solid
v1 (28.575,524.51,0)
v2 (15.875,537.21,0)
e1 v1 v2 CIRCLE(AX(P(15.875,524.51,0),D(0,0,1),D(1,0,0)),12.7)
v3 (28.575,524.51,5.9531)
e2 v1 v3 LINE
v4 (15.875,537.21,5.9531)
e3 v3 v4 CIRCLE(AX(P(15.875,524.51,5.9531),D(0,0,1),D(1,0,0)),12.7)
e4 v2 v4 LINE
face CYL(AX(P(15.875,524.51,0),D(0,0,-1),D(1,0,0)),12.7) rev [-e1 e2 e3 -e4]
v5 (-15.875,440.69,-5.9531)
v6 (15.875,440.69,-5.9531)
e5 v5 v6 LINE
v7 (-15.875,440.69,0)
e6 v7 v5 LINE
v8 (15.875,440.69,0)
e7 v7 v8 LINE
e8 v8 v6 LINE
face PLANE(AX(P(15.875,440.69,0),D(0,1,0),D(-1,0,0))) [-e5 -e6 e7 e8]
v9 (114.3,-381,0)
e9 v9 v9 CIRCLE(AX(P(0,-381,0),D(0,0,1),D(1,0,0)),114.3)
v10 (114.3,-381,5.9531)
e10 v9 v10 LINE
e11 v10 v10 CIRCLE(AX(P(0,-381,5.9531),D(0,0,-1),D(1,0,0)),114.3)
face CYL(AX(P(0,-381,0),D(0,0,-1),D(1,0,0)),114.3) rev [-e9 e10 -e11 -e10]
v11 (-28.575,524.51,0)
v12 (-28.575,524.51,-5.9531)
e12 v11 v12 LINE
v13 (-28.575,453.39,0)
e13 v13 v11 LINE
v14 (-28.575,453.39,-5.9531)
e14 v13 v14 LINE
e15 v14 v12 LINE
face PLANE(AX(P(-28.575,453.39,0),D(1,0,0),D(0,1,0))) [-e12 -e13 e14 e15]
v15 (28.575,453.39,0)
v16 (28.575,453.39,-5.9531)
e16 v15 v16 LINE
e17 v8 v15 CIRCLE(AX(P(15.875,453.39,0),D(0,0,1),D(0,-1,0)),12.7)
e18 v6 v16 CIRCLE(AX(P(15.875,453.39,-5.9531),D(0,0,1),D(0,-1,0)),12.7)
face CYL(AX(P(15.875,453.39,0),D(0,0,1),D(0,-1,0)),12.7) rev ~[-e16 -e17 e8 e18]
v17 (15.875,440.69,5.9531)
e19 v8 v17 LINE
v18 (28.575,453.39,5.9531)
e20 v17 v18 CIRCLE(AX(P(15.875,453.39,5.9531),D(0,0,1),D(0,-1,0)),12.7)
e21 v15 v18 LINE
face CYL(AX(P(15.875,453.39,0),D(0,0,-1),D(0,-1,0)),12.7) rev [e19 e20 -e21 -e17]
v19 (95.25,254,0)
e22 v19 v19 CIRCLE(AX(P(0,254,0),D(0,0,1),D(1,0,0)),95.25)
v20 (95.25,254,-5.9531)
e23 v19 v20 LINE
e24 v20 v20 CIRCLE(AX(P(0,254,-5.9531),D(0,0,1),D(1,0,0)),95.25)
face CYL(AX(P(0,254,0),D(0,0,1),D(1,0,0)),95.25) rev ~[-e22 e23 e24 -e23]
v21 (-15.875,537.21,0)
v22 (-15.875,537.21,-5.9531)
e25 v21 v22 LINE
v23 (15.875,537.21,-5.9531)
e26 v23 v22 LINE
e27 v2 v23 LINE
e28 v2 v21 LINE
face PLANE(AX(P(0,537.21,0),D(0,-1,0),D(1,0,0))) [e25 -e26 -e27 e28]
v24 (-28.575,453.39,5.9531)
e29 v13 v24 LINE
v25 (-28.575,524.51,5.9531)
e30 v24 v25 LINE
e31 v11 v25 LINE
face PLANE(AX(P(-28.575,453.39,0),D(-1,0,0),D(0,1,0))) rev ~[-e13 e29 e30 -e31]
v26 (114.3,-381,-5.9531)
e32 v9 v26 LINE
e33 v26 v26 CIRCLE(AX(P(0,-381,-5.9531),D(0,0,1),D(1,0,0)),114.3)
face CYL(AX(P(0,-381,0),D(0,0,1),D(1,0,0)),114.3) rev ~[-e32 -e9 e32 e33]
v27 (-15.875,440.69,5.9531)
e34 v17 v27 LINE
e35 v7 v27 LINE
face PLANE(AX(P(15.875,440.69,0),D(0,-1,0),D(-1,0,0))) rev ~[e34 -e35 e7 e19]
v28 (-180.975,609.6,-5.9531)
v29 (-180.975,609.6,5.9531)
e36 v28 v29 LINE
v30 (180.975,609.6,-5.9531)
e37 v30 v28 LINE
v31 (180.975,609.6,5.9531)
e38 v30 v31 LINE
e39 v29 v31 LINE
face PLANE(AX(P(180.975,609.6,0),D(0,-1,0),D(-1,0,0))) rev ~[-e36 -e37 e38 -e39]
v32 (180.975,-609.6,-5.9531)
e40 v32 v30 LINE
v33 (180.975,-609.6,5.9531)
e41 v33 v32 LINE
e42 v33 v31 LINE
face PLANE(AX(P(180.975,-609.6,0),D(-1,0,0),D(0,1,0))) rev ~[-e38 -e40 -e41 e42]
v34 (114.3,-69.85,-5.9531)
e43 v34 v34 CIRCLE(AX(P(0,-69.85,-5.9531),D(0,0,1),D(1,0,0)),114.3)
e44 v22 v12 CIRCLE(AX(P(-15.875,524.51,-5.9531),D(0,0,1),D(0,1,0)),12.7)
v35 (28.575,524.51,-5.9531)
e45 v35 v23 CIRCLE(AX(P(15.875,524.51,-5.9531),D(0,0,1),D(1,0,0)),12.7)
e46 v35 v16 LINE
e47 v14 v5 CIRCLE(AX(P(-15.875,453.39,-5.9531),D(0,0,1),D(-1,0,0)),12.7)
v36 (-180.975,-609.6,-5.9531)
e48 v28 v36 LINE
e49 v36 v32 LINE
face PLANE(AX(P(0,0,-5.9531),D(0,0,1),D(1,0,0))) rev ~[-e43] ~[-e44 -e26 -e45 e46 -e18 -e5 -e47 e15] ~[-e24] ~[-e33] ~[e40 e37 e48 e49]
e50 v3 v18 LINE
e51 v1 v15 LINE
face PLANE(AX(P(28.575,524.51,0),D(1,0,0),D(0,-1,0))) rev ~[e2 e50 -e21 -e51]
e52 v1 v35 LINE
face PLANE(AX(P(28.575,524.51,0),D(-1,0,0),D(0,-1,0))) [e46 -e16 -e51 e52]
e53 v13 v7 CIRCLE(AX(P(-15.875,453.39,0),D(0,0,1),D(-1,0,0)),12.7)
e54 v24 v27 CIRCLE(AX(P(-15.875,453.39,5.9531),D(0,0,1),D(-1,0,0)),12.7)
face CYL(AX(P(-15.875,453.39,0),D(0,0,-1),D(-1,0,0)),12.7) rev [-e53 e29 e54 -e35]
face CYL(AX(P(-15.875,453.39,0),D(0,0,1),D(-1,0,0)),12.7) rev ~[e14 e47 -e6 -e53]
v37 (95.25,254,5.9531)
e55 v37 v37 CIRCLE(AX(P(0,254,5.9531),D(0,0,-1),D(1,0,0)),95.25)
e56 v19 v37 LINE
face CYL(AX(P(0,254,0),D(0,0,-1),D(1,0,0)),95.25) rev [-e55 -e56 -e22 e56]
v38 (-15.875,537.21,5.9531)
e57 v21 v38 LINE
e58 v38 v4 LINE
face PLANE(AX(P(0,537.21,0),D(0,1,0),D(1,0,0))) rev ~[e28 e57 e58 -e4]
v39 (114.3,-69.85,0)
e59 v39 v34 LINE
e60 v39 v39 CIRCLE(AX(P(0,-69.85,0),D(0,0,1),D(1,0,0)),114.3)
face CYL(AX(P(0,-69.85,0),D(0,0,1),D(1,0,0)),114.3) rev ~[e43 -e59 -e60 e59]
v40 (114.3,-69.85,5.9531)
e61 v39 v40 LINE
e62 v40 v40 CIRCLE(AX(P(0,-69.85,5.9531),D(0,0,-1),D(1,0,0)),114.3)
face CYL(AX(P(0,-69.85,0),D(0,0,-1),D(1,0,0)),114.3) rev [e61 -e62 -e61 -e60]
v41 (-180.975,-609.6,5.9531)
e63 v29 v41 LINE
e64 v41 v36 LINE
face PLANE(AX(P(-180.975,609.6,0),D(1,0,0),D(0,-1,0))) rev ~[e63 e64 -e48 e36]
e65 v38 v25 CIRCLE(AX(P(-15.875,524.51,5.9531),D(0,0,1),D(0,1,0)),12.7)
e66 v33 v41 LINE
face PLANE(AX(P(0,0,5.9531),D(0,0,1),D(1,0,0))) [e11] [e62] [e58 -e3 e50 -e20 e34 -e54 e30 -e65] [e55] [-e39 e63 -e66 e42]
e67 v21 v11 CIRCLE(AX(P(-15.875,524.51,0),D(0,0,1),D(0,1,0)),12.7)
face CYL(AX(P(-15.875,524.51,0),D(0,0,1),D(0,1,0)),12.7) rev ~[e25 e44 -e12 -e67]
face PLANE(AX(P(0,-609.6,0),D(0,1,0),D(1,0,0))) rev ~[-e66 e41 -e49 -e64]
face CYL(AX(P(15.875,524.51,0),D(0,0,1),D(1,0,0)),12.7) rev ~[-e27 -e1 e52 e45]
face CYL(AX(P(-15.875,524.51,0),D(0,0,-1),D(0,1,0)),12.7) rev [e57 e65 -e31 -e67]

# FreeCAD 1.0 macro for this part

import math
import FreeCAD as App
import Part
import Sketcher
Q = App.Units.Quantity


def add_polygon(sketch, points):
    """Adds a closed chain of lines whose ends are joined by coincident constraints."""
    first, n = sketch.GeometryCount, len(points)
    for a, b in zip(points, points[1:] + points[:1]):
        sketch.addGeometry(Part.LineSegment(App.Vector(*a, 0), App.Vector(*b, 0)), False)
    for i in range(n):
        sketch.addConstraint(Sketcher.Constraint("Coincident", first + i, 2, first + (i + 1) % n, 1))

doc = App.newDocument("Part")
body = doc.addObject("PartDesign::Body", "Body")

# Sketch on XY plane
sketch1 = body.newObject("Sketcher::SketchObject", "Sketch")
sketch1.AttachmentSupport = (doc.getObject("XY_Plane"), [""])
sketch1.MapMode = "FlatFace"
add_polygon(sketch1, [(180.975, -609.6), (180.975, 609.6), (-180.975, 609.6), (-180.975, -609.6)])  # lines 0-3
sketch1.addGeometry(Part.Circle(App.Vector(0, -381, 0), App.Vector(0, 0, 1), 114.3), False)  # 4
sketch1.addGeometry(Part.Circle(App.Vector(0, -69.85, 0), App.Vector(0, 0, 1), 114.3), False)  # 5
sketch1.addGeometry(Part.Circle(App.Vector(0, 254, 0), App.Vector(0, 0, 1), 95.25), False)  # 6
sketch1.addGeometry(Part.LineSegment(App.Vector(15.875, 440.69, 0), App.Vector(-15.875, 440.69, 0)), False)  # 7
sketch1.addGeometry(Part.ArcOfCircle(Part.Circle(App.Vector(-15.875, 453.39, 0), App.Vector(0, 0, 1), 12.7), math.radians(180), math.radians(270)), False)  # 8
sketch1.addGeometry(Part.LineSegment(App.Vector(-28.575, 453.39, 0), App.Vector(-28.575, 524.51, 0)), False)  # 9
sketch1.addGeometry(Part.ArcOfCircle(Part.Circle(App.Vector(-15.875, 524.51, 0), App.Vector(0, 0, 1), 12.7), math.radians(90), math.radians(180)), False)  # 10
sketch1.addGeometry(Part.LineSegment(App.Vector(-15.875, 537.21, 0), App.Vector(15.875, 537.21, 0)), False)  # 11
sketch1.addGeometry(Part.ArcOfCircle(Part.Circle(App.Vector(15.875, 524.51, 0), App.Vector(0, 0, 1), 12.7), math.radians(0), math.radians(90)), False)  # 12
sketch1.addGeometry(Part.LineSegment(App.Vector(28.575, 524.51, 0), App.Vector(28.575, 453.39, 0)), False)  # 13
sketch1.addGeometry(Part.ArcOfCircle(Part.Circle(App.Vector(15.875, 453.39, 0), App.Vector(0, 0, 1), 12.7), math.radians(-90), math.radians(0)), False)  # 14
sketch1.addConstraint([
    Sketcher.Constraint("Tangent", 7, 2, 8, 2),
    Sketcher.Constraint("Tangent", 8, 1, 9, 1),
    Sketcher.Constraint("Tangent", 9, 2, 10, 2),
    Sketcher.Constraint("Tangent", 10, 1, 11, 1),
    Sketcher.Constraint("Tangent", 11, 2, 12, 2),
    Sketcher.Constraint("Tangent", 12, 1, 13, 1),
    Sketcher.Constraint("Tangent", 13, 2, 14, 2),
    Sketcher.Constraint("Tangent", 14, 1, 7, 1),
    Sketcher.Constraint("Vertical", 0),
    Sketcher.Constraint("Horizontal", 1),
    Sketcher.Constraint("Vertical", 2),
    Sketcher.Constraint("Horizontal", 3),
    Sketcher.Constraint("Horizontal", 7),
    Sketcher.Constraint("Vertical", 9),
    Sketcher.Constraint("Horizontal", 11),
    Sketcher.Constraint("Vertical", 13),
    Sketcher.Constraint("Equal", 4, 5),
    Sketcher.Constraint("Equal", 8, 10),
    Sketcher.Constraint("Equal", 10, 12),
    Sketcher.Constraint("Equal", 12, 14),
    Sketcher.Constraint("Symmetric", 0, 2, 2, 2, -1, 1),
    Sketcher.Constraint("PointOnObject", 4, 3, -2),
    Sketcher.Constraint("PointOnObject", 5, 3, -2),
    Sketcher.Constraint("PointOnObject", 6, 3, -2),
    Sketcher.Constraint("Diameter", 4, Q("9 in")),
    Sketcher.Constraint("Diameter", 6, Q("7.5 in")),
    Sketcher.Constraint("Radius", 8, Q("0.5 in")),
    Sketcher.Constraint("DistanceY", 0, 1, 0, 2, Q("48 in")),
    Sketcher.Constraint("DistanceY", 6, 3, 0, 2, Q("14 in")),
    Sketcher.Constraint("DistanceY", 2, 2, 4, 3, Q("9 in")),
    Sketcher.Constraint("DistanceX", 1, 2, 1, 1, Q("14.25 in")),
    Sketcher.Constraint("DistanceX", 9, 2, 12, 1, Q("2.25 in")),
    Sketcher.Constraint("DistanceY", 9, 1, 9, 2, Q("2.8 in")),
    Sketcher.Constraint("DistanceY", 5, 3, 8, 3, Q("20.6 in")),
    Sketcher.Constraint("DistanceX", 12, 3, 0, 2, Q("6.5 in")),
    Sketcher.Constraint("DistanceY", 5, 3, -1, 1, Q("2.75 in")),
])
pad1 = body.newObject("PartDesign::Pad", "Pad")
pad1.Profile = sketch1
pad1.Length = Q("0.468748 in")
pad1.Midplane = True

doc.recompute()
